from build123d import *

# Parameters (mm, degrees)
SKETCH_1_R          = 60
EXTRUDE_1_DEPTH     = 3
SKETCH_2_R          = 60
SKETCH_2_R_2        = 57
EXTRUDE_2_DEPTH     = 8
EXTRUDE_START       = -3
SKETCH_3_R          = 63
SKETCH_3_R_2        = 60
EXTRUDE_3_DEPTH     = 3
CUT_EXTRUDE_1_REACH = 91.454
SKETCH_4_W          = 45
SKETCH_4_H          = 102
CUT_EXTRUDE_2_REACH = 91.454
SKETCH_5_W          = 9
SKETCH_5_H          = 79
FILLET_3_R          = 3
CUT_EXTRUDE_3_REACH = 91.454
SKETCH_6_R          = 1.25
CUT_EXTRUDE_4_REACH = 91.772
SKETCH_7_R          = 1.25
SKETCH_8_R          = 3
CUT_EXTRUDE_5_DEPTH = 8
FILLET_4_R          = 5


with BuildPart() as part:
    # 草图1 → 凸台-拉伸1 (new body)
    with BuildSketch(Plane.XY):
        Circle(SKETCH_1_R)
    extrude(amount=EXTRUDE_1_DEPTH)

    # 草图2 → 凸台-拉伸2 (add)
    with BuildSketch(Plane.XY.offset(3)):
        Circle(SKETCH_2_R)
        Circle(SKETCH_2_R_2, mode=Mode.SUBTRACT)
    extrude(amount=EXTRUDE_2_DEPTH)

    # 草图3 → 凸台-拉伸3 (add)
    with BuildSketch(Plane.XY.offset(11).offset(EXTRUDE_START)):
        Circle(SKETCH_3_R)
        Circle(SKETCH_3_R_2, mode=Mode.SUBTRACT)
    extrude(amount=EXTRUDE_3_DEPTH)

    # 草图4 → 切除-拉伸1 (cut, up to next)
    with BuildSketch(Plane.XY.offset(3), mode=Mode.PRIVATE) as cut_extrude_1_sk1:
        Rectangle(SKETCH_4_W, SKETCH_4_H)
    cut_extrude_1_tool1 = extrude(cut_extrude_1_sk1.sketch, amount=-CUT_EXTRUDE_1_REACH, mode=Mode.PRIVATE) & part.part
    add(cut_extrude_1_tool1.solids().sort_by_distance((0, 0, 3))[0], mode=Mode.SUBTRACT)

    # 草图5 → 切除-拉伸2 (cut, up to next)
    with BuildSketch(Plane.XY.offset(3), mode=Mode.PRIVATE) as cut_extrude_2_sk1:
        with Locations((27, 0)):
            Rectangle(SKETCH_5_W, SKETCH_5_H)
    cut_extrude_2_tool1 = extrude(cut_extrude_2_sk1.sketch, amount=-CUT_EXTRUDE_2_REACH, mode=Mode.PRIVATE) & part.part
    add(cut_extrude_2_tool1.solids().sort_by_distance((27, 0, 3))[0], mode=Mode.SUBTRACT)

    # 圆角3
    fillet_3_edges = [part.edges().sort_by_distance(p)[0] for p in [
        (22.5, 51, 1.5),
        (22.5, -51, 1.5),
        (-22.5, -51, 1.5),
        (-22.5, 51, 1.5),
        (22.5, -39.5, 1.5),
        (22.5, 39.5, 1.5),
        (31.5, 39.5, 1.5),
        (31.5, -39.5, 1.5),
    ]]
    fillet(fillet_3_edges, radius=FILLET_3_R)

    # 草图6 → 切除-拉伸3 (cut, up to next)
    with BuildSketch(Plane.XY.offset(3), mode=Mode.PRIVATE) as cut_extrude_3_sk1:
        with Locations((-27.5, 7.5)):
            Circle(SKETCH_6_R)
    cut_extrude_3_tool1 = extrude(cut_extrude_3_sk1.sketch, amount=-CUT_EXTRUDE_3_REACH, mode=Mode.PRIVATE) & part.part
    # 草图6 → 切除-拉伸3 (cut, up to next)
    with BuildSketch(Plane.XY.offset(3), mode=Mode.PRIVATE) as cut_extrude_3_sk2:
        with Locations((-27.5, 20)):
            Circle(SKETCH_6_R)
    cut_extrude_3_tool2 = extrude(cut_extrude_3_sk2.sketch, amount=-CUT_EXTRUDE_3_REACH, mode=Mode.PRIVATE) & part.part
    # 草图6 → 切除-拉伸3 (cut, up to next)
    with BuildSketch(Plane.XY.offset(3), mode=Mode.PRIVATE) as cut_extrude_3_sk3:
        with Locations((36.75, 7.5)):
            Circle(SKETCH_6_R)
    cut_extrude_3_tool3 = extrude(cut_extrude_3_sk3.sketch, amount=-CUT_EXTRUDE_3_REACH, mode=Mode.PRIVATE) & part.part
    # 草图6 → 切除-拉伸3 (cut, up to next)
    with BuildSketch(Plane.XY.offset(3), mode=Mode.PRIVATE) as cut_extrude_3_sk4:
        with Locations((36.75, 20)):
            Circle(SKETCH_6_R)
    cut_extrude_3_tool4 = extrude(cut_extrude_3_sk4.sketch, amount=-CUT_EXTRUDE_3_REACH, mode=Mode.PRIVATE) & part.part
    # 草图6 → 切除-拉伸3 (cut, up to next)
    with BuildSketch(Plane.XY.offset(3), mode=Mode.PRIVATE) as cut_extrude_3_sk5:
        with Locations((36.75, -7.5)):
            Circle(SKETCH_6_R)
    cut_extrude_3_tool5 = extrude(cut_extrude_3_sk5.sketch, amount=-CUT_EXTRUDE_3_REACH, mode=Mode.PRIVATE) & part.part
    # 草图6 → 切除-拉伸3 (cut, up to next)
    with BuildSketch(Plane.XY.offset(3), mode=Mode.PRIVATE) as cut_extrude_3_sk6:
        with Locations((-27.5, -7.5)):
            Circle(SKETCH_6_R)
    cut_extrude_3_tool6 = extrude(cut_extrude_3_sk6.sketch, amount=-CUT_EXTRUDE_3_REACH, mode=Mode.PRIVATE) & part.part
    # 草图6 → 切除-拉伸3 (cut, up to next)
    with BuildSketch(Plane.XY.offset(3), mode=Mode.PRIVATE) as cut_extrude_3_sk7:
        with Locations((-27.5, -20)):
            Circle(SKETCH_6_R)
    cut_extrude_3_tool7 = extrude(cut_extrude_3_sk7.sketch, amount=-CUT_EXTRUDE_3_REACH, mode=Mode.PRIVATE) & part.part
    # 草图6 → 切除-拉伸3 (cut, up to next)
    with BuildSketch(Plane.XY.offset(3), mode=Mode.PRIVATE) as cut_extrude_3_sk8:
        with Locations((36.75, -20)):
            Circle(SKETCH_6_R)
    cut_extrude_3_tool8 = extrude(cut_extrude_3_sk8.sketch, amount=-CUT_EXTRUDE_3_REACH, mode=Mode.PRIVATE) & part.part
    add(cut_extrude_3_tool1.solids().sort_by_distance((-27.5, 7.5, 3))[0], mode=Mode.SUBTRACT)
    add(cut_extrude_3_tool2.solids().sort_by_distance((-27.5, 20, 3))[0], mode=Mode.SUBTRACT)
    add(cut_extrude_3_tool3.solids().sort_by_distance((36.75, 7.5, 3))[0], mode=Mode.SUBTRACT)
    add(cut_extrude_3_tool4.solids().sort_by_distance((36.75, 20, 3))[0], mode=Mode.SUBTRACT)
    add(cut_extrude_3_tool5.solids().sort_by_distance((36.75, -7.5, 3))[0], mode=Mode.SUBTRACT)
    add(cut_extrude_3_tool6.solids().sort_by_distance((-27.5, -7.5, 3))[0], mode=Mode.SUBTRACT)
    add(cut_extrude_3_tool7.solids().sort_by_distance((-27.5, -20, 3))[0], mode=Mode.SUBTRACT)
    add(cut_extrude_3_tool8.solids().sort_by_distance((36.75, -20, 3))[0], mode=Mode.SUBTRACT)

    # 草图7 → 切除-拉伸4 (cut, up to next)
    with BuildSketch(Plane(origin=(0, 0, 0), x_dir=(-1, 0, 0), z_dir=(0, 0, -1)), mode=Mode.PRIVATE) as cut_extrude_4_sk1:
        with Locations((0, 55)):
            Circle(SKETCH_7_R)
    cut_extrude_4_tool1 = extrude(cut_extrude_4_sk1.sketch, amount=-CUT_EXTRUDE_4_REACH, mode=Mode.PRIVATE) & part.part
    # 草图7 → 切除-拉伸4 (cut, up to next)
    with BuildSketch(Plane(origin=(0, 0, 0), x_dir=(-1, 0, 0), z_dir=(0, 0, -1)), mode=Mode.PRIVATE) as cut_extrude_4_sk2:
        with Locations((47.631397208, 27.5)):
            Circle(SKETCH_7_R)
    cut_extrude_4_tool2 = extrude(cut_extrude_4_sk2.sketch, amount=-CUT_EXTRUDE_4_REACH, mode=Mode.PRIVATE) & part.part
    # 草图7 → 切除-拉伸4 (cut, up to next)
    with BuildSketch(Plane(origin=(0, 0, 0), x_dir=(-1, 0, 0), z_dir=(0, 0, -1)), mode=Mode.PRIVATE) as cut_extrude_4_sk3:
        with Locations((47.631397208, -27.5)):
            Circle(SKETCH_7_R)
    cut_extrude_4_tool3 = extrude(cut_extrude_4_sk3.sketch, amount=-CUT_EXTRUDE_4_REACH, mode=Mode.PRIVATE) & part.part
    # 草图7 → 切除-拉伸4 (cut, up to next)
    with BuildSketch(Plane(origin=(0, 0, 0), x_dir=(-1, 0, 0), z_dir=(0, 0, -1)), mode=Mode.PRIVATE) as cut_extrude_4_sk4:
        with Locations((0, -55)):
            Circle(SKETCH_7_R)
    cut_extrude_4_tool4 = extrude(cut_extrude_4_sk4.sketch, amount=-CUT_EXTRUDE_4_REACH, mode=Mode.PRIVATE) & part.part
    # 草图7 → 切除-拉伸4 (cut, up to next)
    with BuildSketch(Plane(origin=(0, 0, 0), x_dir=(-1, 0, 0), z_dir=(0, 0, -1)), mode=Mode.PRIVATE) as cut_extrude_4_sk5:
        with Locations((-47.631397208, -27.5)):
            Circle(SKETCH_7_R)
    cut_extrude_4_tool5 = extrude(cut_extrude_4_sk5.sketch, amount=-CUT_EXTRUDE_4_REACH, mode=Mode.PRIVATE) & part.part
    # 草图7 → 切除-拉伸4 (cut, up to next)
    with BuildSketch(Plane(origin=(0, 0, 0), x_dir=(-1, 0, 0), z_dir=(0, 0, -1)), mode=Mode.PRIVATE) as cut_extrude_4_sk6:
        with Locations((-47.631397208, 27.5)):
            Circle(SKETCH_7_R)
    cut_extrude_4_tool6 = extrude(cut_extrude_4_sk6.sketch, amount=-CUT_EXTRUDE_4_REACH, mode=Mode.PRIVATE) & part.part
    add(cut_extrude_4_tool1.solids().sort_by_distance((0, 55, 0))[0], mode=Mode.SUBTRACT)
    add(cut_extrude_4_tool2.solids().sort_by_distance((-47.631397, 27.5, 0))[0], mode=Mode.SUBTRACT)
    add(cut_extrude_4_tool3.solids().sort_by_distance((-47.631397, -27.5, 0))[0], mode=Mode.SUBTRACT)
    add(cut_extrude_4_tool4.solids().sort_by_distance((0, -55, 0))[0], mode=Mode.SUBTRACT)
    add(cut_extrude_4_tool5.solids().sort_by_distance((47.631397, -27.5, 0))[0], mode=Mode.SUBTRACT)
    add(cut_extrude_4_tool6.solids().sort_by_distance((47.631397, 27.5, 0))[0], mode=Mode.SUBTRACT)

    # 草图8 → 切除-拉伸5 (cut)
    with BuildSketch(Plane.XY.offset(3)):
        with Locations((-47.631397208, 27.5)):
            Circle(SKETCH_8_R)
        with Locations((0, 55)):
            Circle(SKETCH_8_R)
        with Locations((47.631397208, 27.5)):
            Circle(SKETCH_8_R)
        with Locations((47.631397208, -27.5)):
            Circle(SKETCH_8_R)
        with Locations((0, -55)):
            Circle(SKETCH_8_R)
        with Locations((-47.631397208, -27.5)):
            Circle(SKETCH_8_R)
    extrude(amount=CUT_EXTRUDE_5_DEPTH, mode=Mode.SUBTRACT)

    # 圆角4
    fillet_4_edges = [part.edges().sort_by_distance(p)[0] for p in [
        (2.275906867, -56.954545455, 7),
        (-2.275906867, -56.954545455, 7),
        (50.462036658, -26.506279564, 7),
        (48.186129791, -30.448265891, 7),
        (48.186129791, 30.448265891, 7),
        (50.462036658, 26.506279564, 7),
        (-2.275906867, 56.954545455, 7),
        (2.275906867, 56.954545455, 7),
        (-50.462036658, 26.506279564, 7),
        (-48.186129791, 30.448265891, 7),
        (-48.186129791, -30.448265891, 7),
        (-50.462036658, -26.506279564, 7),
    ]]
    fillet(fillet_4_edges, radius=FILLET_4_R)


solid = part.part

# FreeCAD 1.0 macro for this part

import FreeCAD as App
import Part
import Sketcher

V = App.Vector


def edges_at(feature, points):
    """Names of the edges that pass closest to the given points."""
    edges = feature.Shape.Edges
    near = lambda p: min(range(len(edges)), key=lambda i: edges[i].distToShape(Part.Vertex(*p))[0])
    return sorted({f"Edge{near(p) + 1}" for p in points})


def add_polygon(sketch, points):
    """Adds a closed chain of lines whose ends are joined by coincident constraints."""
    first, n = sketch.GeometryCount, len(points)
    for a, b in zip(points, points[1:] + points[:1]):
        sketch.addGeometry(Part.LineSegment(App.Vector(*a, 0), App.Vector(*b, 0)), False)
    for i in range(n):
        sketch.addConstraint(Sketcher.Constraint("Coincident", first + i, 2, first + (i + 1) % n, 1))

doc = App.newDocument("Part")
body = doc.addObject("PartDesign::Body", "Body")

sketch1 = body.newObject("Sketcher::SketchObject", "Sketch")
sketch1.AttachmentSupport = (doc.getObject("XY_Plane"), [""])
sketch1.MapMode = "FlatFace"
sketch1.addGeometry(Part.Circle(V(0, 0, 0), V(0, 0, 1), 60), False)
sketch1.addConstraint(Sketcher.Constraint("Coincident", 0, 3, -1, 1))
sketch1.addConstraint(Sketcher.Constraint("Diameter", 0, 120.0))
pad1 = body.newObject("PartDesign::Pad", "Pad")
pad1.Profile = sketch1
pad1.Length = 3

sketch2 = body.newObject("Sketcher::SketchObject", "Sketch001")
sketch2.AttachmentSupport = (doc.getObject("XY_Plane"), [""])
sketch2.MapMode = "FlatFace"
sketch2.AttachmentOffset = App.Placement(V(0, 0, 3), App.Rotation())
sketch2.addGeometry(Part.Circle(V(0, 0, 0), V(0, 0, 1), 60), False)
sketch2.addGeometry(Part.Circle(V(0, 0, 0), V(0, 0, 1), 57), False)
sketch2.addConstraint(Sketcher.Constraint("Coincident", 0, 3, -1, 1))
sketch2.addConstraint(Sketcher.Constraint("Coincident", 1, 3, -1, 1))
sketch2.addConstraint(Sketcher.Constraint("Diameter", 0, 120.0))
sketch2.addConstraint(Sketcher.Constraint("Diameter", 1, 114.0))
pad2 = body.newObject("PartDesign::Pad", "Pad001")
pad2.Profile = sketch2
pad2.Length = 8

sketch3 = body.newObject("Sketcher::SketchObject", "Sketch002")
sketch3.AttachmentSupport = (doc.getObject("XY_Plane"), [""])
sketch3.MapMode = "FlatFace"
sketch3.AttachmentOffset = App.Placement(V(0, 0, 8), App.Rotation())
sketch3.addGeometry(Part.Circle(V(0, 0, 0), V(0, 0, 1), 63), False)
sketch3.addGeometry(Part.Circle(V(0, 0, 0), V(0, 0, 1), 60), False)
sketch3.addConstraint(Sketcher.Constraint("Coincident", 0, 3, -1, 1))
sketch3.addConstraint(Sketcher.Constraint("Coincident", 1, 3, -1, 1))
sketch3.addConstraint(Sketcher.Constraint("Diameter", 0, 126.0))
sketch3.addConstraint(Sketcher.Constraint("Diameter", 1, 120.0))
pad3 = body.newObject("PartDesign::Pad", "Pad002")
pad3.Profile = sketch3
pad3.Length = 3

sketch4 = body.newObject("Sketcher::SketchObject", "Sketch003")
sketch4.AttachmentSupport = (doc.getObject("XY_Plane"), [""])
sketch4.MapMode = "FlatFace"
sketch4.AttachmentOffset = App.Placement(V(0, 0, 3), App.Rotation())
add_polygon(sketch4, [(-22.5, 51), (-22.5, -51), (22.5, -51), (22.5, 51)])
sketch4.addConstraint(Sketcher.Constraint("Vertical", 0))
sketch4.addConstraint(Sketcher.Constraint("Horizontal", 1))
sketch4.addConstraint(Sketcher.Constraint("Vertical", 2))
sketch4.addConstraint(Sketcher.Constraint("Horizontal", 3))
sketch4.addConstraint(Sketcher.Constraint("Symmetric", 0, 2, 2, 2, -1, 1))
sketch4.addConstraint(Sketcher.Constraint("DistanceX", 1, 1, 1, 2, 45.0))
sketch4.addConstraint(Sketcher.Constraint("DistanceY", 0, 2, 0, 1, 102.0))
pocket1 = body.newObject("PartDesign::Pocket", "Pocket")
pocket1.Profile = sketch4
pocket1.Type = "UpToFirst"

sketch5 = body.newObject("Sketcher::SketchObject", "Sketch004")
sketch5.AttachmentSupport = (doc.getObject("XY_Plane"), [""])
sketch5.MapMode = "FlatFace"
sketch5.AttachmentOffset = App.Placement(V(0, 0, 3), App.Rotation())
add_polygon(sketch5, [(22.5, 39.5), (22.5, -39.5), (31.5, -39.5), (31.5, 39.5)])
sketch5.addConstraint(Sketcher.Constraint("Vertical", 0))
sketch5.addConstraint(Sketcher.Constraint("Horizontal", 1))
sketch5.addConstraint(Sketcher.Constraint("Vertical", 2))
sketch5.addConstraint(Sketcher.Constraint("Horizontal", 3))
sketch5.addConstraint(Sketcher.Constraint("DistanceX", 1, 1, 1, 2, 9.0))
sketch5.addConstraint(Sketcher.Constraint("DistanceY", 0, 2, 0, 1, 79.0))
sketch5.addConstraint(Sketcher.Constraint("DistanceX", -1, 1, 0, 2, 22.5))
sketch5.addConstraint(Sketcher.Constraint("DistanceY", 0, 2, -1, 1, 39.5))
pocket2 = body.newObject("PartDesign::Pocket", "Pocket001")
pocket2.Profile = sketch5
pocket2.Type = "UpToFirst"
doc.recompute()

fillet = body.newObject("PartDesign::Fillet", "Fillet")
fillet.Base = (pocket2, edges_at(pocket2, [
    (22.5, 51, 1.5),
    (22.5, -51, 1.5),
    (-22.5, -51, 1.5),
    (-22.5, 51, 1.5),
    (22.5, -39.5, 1.5),
    (22.5, 39.5, 1.5),
    (31.5, 39.5, 1.5),
    (31.5, -39.5, 1.5),
]))
fillet.Radius = 3

sketch6 = body.newObject("Sketcher::SketchObject", "Sketch005")
sketch6.AttachmentSupport = (doc.getObject("XY_Plane"), [""])
sketch6.MapMode = "FlatFace"
sketch6.AttachmentOffset = App.Placement(V(0, 0, 3), App.Rotation())
sketch6.addGeometry(Part.Circle(V(-27.5, 7.5, 0), V(0, 0, 1), 1.25), False)
sketch6.addConstraint(Sketcher.Constraint("Diameter", 0, 2.5))
sketch6.addConstraint(Sketcher.Constraint("DistanceX", 0, 3, -1, 1, 27.5))
sketch6.addConstraint(Sketcher.Constraint("DistanceY", -1, 1, 0, 3, 7.5))
pocket3 = body.newObject("PartDesign::Pocket", "Pocket002")
pocket3.Profile = sketch6
pocket3.Type = "UpToFirst"

sketch7 = body.newObject("Sketcher::SketchObject", "Sketch006")
sketch7.AttachmentSupport = (doc.getObject("XY_Plane"), [""])
sketch7.MapMode = "FlatFace"
sketch7.AttachmentOffset = App.Placement(V(0, 0, 3), App.Rotation())
sketch7.addGeometry(Part.Circle(V(-27.5, 20, 0), V(0, 0, 1), 1.25), False)
sketch7.addConstraint(Sketcher.Constraint("Diameter", 0, 2.5))
sketch7.addConstraint(Sketcher.Constraint("DistanceY", -1, 1, 0, 3, 20.0))
sketch7.addConstraint(Sketcher.Constraint("DistanceX", 0, 3, -1, 1, 27.5))
pocket4 = body.newObject("PartDesign::Pocket", "Pocket003")
pocket4.Profile = sketch7
pocket4.Type = "UpToFirst"

sketch8 = body.newObject("Sketcher::SketchObject", "Sketch007")
sketch8.AttachmentSupport = (doc.getObject("XY_Plane"), [""])
sketch8.MapMode = "FlatFace"
sketch8.AttachmentOffset = App.Placement(V(0, 0, 3), App.Rotation())
sketch8.addGeometry(Part.Circle(V(36.75, 7.5, 0), V(0, 0, 1), 1.25), False)
sketch8.addConstraint(Sketcher.Constraint("Diameter", 0, 2.5))
sketch8.addConstraint(Sketcher.Constraint("DistanceY", -1, 1, 0, 3, 7.5))
sketch8.addConstraint(Sketcher.Constraint("DistanceX", -1, 1, 0, 3, 36.75))
pocket5 = body.newObject("PartDesign::Pocket", "Pocket004")
pocket5.Profile = sketch8
pocket5.Type = "UpToFirst"

sketch9 = body.newObject("Sketcher::SketchObject", "Sketch008")
sketch9.AttachmentSupport = (doc.getObject("XY_Plane"), [""])
sketch9.MapMode = "FlatFace"
sketch9.AttachmentOffset = App.Placement(V(0, 0, 3), App.Rotation())
sketch9.addGeometry(Part.Circle(V(36.75, 20, 0), V(0, 0, 1), 1.25), False)
sketch9.addConstraint(Sketcher.Constraint("Diameter", 0, 2.5))
sketch9.addConstraint(Sketcher.Constraint("DistanceY", -1, 1, 0, 3, 20.0))
sketch9.addConstraint(Sketcher.Constraint("DistanceX", -1, 1, 0, 3, 36.75))
pocket6 = body.newObject("PartDesign::Pocket", "Pocket005")
pocket6.Profile = sketch9
pocket6.Type = "UpToFirst"

sketch10 = body.newObject("Sketcher::SketchObject", "Sketch009")
sketch10.AttachmentSupport = (doc.getObject("XY_Plane"), [""])
sketch10.MapMode = "FlatFace"
sketch10.AttachmentOffset = App.Placement(V(0, 0, 3), App.Rotation())
sketch10.addGeometry(Part.Circle(V(36.75, -7.5, 0), V(0, 0, 1), 1.25), False)
sketch10.addConstraint(Sketcher.Constraint("Diameter", 0, 2.5))
sketch10.addConstraint(Sketcher.Constraint("DistanceY", 0, 3, -1, 1, 7.5))
sketch10.addConstraint(Sketcher.Constraint("DistanceX", -1, 1, 0, 3, 36.75))
pocket7 = body.newObject("PartDesign::Pocket", "Pocket006")
pocket7.Profile = sketch10
pocket7.Type = "UpToFirst"

sketch11 = body.newObject("Sketcher::SketchObject", "Sketch010")
sketch11.AttachmentSupport = (doc.getObject("XY_Plane"), [""])
sketch11.MapMode = "FlatFace"
sketch11.AttachmentOffset = App.Placement(V(0, 0, 3), App.Rotation())
sketch11.addGeometry(Part.Circle(V(-27.5, -7.5, 0), V(0, 0, 1), 1.25), False)
sketch11.addConstraint(Sketcher.Constraint("Diameter", 0, 2.5))
sketch11.addConstraint(Sketcher.Constraint("DistanceX", 0, 3, -1, 1, 27.5))
sketch11.addConstraint(Sketcher.Constraint("DistanceY", 0, 3, -1, 1, 7.5))
pocket8 = body.newObject("PartDesign::Pocket", "Pocket007")
pocket8.Profile = sketch11
pocket8.Type = "UpToFirst"

sketch12 = body.newObject("Sketcher::SketchObject", "Sketch011")
sketch12.AttachmentSupport = (doc.getObject("XY_Plane"), [""])
sketch12.MapMode = "FlatFace"
sketch12.AttachmentOffset = App.Placement(V(0, 0, 3), App.Rotation())
sketch12.addGeometry(Part.Circle(V(-27.5, -20, 0), V(0, 0, 1), 1.25), False)
sketch12.addConstraint(Sketcher.Constraint("Diameter", 0, 2.5))
sketch12.addConstraint(Sketcher.Constraint("DistanceY", 0, 3, -1, 1, 20.0))
sketch12.addConstraint(Sketcher.Constraint("DistanceX", 0, 3, -1, 1, 27.5))
pocket9 = body.newObject("PartDesign::Pocket", "Pocket008")
pocket9.Profile = sketch12
pocket9.Type = "UpToFirst"

sketch13 = body.newObject("Sketcher::SketchObject", "Sketch012")
sketch13.AttachmentSupport = (doc.getObject("XY_Plane"), [""])
sketch13.MapMode = "FlatFace"
sketch13.AttachmentOffset = App.Placement(V(0, 0, 3), App.Rotation())
sketch13.addGeometry(Part.Circle(V(36.75, -20, 0), V(0, 0, 1), 1.25), False)
sketch13.addConstraint(Sketcher.Constraint("Diameter", 0, 2.5))
sketch13.addConstraint(Sketcher.Constraint("DistanceY", 0, 3, -1, 1, 20.0))
sketch13.addConstraint(Sketcher.Constraint("DistanceX", -1, 1, 0, 3, 36.75))
pocket10 = body.newObject("PartDesign::Pocket", "Pocket009")
pocket10.Profile = sketch13
pocket10.Type = "UpToFirst"

sketch14 = body.newObject("Sketcher::SketchObject", "Sketch013")
sketch14.AttachmentSupport = (doc.getObject("XY_Plane"), [""])
sketch14.MapMode = "FlatFace"
sketch14.addGeometry(Part.Circle(V(0, 55, 0), V(0, 0, 1), 1.25), False)
sketch14.addConstraint(Sketcher.Constraint("PointOnObject", 0, 3, -2))
sketch14.addConstraint(Sketcher.Constraint("Diameter", 0, 2.5))
sketch14.addConstraint(Sketcher.Constraint("DistanceY", -1, 1, 0, 3, 55.0))
pocket11 = body.newObject("PartDesign::Pocket", "Pocket010")
pocket11.Profile = sketch14
pocket11.Type = "UpToFirst"
pocket11.Reversed = True

sketch15 = body.newObject("Sketcher::SketchObject", "Sketch014")
sketch15.AttachmentSupport = (doc.getObject("XY_Plane"), [""])
sketch15.MapMode = "FlatFace"
sketch15.addGeometry(Part.Circle(V(-47.631397, 27.5, 0), V(0, 0, 1), 1.25), False)
sketch15.addConstraint(Sketcher.Constraint("Diameter", 0, 2.5))
sketch15.addConstraint(Sketcher.Constraint("DistanceY", -1, 1, 0, 3, 27.5))
sketch15.addConstraint(Sketcher.Constraint("DistanceX", 0, 3, -1, 1, 47.631397))
pocket12 = body.newObject("PartDesign::Pocket", "Pocket011")
pocket12.Profile = sketch15
pocket12.Type = "UpToFirst"
pocket12.Reversed = True

sketch16 = body.newObject("Sketcher::SketchObject", "Sketch015")
sketch16.AttachmentSupport = (doc.getObject("XY_Plane"), [""])
sketch16.MapMode = "FlatFace"
sketch16.addGeometry(Part.Circle(V(-47.631397, -27.5, 0), V(0, 0, 1), 1.25), False)
sketch16.addConstraint(Sketcher.Constraint("Diameter", 0, 2.5))
sketch16.addConstraint(Sketcher.Constraint("DistanceY", 0, 3, -1, 1, 27.5))
sketch16.addConstraint(Sketcher.Constraint("DistanceX", 0, 3, -1, 1, 47.631397))
pocket13 = body.newObject("PartDesign::Pocket", "Pocket012")
pocket13.Profile = sketch16
pocket13.Type = "UpToFirst"
pocket13.Reversed = True

sketch17 = body.newObject("Sketcher::SketchObject", "Sketch016")
sketch17.AttachmentSupport = (doc.getObject("XY_Plane"), [""])
sketch17.MapMode = "FlatFace"
sketch17.addGeometry(Part.Circle(V(0, -55, 0), V(0, 0, 1), 1.25), False)
sketch17.addConstraint(Sketcher.Constraint("PointOnObject", 0, 3, -2))
sketch17.addConstraint(Sketcher.Constraint("Diameter", 0, 2.5))
sketch17.addConstraint(Sketcher.Constraint("DistanceY", 0, 3, -1, 1, 55.0))
pocket14 = body.newObject("PartDesign::Pocket", "Pocket013")
pocket14.Profile = sketch17
pocket14.Type = "UpToFirst"
pocket14.Reversed = True

sketch18 = body.newObject("Sketcher::SketchObject", "Sketch017")
sketch18.AttachmentSupport = (doc.getObject("XY_Plane"), [""])
sketch18.MapMode = "FlatFace"
sketch18.addGeometry(Part.Circle(V(47.631397, -27.5, 0), V(0, 0, 1), 1.25), False)
sketch18.addConstraint(Sketcher.Constraint("Diameter", 0, 2.5))
sketch18.addConstraint(Sketcher.Constraint("DistanceY", 0, 3, -1, 1, 27.5))
sketch18.addConstraint(Sketcher.Constraint("DistanceX", -1, 1, 0, 3, 47.631397))
pocket15 = body.newObject("PartDesign::Pocket", "Pocket014")
pocket15.Profile = sketch18
pocket15.Type = "UpToFirst"
pocket15.Reversed = True

sketch19 = body.newObject("Sketcher::SketchObject", "Sketch018")
sketch19.AttachmentSupport = (doc.getObject("XY_Plane"), [""])
sketch19.MapMode = "FlatFace"
sketch19.addGeometry(Part.Circle(V(47.631397, 27.5, 0), V(0, 0, 1), 1.25), False)
sketch19.addConstraint(Sketcher.Constraint("Diameter", 0, 2.5))
sketch19.addConstraint(Sketcher.Constraint("DistanceY", -1, 1, 0, 3, 27.5))
sketch19.addConstraint(Sketcher.Constraint("DistanceX", -1, 1, 0, 3, 47.631397))
pocket16 = body.newObject("PartDesign::Pocket", "Pocket015")
pocket16.Profile = sketch19
pocket16.Type = "UpToFirst"
pocket16.Reversed = True

sketch20 = body.newObject("Sketcher::SketchObject", "Sketch019")
sketch20.AttachmentSupport = (doc.getObject("XY_Plane"), [""])
sketch20.MapMode = "FlatFace"
sketch20.AttachmentOffset = App.Placement(V(0, 0, 3), App.Rotation())
sketch20.addGeometry(Part.Circle(V(-47.631397, 27.5, 0), V(0, 0, 1), 3), False)
sketch20.addGeometry(Part.Circle(V(0, 55, 0), V(0, 0, 1), 3), False)
sketch20.addGeometry(Part.Circle(V(47.631397, 27.5, 0), V(0, 0, 1), 3), False)
sketch20.addGeometry(Part.Circle(V(47.631397, -27.5, 0), V(0, 0, 1), 3), False)
sketch20.addGeometry(Part.Circle(V(0, -55, 0), V(0, 0, 1), 3), False)
sketch20.addGeometry(Part.Circle(V(-47.631397, -27.5, 0), V(0, 0, 1), 3), False)
sketch20.addConstraint(Sketcher.Constraint("Equal", 0, 1))
sketch20.addConstraint(Sketcher.Constraint("Equal", 1, 2))
sketch20.addConstraint(Sketcher.Constraint("Equal", 2, 3))
sketch20.addConstraint(Sketcher.Constraint("Equal", 3, 4))
sketch20.addConstraint(Sketcher.Constraint("Equal", 4, 5))
sketch20.addConstraint(Sketcher.Constraint("Symmetric", 0, 3, 3, 3, -1, 1))
sketch20.addConstraint(Sketcher.Constraint("Symmetric", 1, 3, 4, 3, -1, 1))
sketch20.addConstraint(Sketcher.Constraint("Symmetric", 2, 3, 5, 3, -1, 1))
sketch20.addConstraint(Sketcher.Constraint("Symmetric", 0, 3, 2, 3, -2))
sketch20.addConstraint(Sketcher.Constraint("PointOnObject", 1, 3, -2))
sketch20.addConstraint(Sketcher.Constraint("Diameter", 0, 6.0))
sketch20.addConstraint(Sketcher.Constraint("DistanceY", -1, 1, 1, 3, 55.0))
sketch20.addConstraint(Sketcher.Constraint("DistanceY", 3, 3, 2, 3, 55.0))
sketch20.addConstraint(Sketcher.Constraint("DistanceX", 0, 3, -1, 1, 47.631397))
pocket17 = body.newObject("PartDesign::Pocket", "Pocket016")
pocket17.Profile = sketch20
pocket17.Length = 8
pocket17.Reversed = True
doc.recompute()

fillet2 = body.newObject("PartDesign::Fillet", "Fillet001")
fillet2.Base = (pocket17, edges_at(pocket17, [
    (2.276, -56.955, 7),
    (-2.276, -56.955, 7),
    (50.462, -26.506, 7),
    (48.186, -30.448, 7),
    (48.186, 30.448, 7),
    (50.462, 26.506, 7),
    (-2.276, 56.955, 7),
    (2.276, 56.955, 7),
    (-50.462, 26.506, 7),
    (-48.186, 30.448, 7),
    (-48.186, -30.448, 7),
    (-50.462, -26.506, 7),
]))
fillet2.Radius = 5

doc.recompute()
